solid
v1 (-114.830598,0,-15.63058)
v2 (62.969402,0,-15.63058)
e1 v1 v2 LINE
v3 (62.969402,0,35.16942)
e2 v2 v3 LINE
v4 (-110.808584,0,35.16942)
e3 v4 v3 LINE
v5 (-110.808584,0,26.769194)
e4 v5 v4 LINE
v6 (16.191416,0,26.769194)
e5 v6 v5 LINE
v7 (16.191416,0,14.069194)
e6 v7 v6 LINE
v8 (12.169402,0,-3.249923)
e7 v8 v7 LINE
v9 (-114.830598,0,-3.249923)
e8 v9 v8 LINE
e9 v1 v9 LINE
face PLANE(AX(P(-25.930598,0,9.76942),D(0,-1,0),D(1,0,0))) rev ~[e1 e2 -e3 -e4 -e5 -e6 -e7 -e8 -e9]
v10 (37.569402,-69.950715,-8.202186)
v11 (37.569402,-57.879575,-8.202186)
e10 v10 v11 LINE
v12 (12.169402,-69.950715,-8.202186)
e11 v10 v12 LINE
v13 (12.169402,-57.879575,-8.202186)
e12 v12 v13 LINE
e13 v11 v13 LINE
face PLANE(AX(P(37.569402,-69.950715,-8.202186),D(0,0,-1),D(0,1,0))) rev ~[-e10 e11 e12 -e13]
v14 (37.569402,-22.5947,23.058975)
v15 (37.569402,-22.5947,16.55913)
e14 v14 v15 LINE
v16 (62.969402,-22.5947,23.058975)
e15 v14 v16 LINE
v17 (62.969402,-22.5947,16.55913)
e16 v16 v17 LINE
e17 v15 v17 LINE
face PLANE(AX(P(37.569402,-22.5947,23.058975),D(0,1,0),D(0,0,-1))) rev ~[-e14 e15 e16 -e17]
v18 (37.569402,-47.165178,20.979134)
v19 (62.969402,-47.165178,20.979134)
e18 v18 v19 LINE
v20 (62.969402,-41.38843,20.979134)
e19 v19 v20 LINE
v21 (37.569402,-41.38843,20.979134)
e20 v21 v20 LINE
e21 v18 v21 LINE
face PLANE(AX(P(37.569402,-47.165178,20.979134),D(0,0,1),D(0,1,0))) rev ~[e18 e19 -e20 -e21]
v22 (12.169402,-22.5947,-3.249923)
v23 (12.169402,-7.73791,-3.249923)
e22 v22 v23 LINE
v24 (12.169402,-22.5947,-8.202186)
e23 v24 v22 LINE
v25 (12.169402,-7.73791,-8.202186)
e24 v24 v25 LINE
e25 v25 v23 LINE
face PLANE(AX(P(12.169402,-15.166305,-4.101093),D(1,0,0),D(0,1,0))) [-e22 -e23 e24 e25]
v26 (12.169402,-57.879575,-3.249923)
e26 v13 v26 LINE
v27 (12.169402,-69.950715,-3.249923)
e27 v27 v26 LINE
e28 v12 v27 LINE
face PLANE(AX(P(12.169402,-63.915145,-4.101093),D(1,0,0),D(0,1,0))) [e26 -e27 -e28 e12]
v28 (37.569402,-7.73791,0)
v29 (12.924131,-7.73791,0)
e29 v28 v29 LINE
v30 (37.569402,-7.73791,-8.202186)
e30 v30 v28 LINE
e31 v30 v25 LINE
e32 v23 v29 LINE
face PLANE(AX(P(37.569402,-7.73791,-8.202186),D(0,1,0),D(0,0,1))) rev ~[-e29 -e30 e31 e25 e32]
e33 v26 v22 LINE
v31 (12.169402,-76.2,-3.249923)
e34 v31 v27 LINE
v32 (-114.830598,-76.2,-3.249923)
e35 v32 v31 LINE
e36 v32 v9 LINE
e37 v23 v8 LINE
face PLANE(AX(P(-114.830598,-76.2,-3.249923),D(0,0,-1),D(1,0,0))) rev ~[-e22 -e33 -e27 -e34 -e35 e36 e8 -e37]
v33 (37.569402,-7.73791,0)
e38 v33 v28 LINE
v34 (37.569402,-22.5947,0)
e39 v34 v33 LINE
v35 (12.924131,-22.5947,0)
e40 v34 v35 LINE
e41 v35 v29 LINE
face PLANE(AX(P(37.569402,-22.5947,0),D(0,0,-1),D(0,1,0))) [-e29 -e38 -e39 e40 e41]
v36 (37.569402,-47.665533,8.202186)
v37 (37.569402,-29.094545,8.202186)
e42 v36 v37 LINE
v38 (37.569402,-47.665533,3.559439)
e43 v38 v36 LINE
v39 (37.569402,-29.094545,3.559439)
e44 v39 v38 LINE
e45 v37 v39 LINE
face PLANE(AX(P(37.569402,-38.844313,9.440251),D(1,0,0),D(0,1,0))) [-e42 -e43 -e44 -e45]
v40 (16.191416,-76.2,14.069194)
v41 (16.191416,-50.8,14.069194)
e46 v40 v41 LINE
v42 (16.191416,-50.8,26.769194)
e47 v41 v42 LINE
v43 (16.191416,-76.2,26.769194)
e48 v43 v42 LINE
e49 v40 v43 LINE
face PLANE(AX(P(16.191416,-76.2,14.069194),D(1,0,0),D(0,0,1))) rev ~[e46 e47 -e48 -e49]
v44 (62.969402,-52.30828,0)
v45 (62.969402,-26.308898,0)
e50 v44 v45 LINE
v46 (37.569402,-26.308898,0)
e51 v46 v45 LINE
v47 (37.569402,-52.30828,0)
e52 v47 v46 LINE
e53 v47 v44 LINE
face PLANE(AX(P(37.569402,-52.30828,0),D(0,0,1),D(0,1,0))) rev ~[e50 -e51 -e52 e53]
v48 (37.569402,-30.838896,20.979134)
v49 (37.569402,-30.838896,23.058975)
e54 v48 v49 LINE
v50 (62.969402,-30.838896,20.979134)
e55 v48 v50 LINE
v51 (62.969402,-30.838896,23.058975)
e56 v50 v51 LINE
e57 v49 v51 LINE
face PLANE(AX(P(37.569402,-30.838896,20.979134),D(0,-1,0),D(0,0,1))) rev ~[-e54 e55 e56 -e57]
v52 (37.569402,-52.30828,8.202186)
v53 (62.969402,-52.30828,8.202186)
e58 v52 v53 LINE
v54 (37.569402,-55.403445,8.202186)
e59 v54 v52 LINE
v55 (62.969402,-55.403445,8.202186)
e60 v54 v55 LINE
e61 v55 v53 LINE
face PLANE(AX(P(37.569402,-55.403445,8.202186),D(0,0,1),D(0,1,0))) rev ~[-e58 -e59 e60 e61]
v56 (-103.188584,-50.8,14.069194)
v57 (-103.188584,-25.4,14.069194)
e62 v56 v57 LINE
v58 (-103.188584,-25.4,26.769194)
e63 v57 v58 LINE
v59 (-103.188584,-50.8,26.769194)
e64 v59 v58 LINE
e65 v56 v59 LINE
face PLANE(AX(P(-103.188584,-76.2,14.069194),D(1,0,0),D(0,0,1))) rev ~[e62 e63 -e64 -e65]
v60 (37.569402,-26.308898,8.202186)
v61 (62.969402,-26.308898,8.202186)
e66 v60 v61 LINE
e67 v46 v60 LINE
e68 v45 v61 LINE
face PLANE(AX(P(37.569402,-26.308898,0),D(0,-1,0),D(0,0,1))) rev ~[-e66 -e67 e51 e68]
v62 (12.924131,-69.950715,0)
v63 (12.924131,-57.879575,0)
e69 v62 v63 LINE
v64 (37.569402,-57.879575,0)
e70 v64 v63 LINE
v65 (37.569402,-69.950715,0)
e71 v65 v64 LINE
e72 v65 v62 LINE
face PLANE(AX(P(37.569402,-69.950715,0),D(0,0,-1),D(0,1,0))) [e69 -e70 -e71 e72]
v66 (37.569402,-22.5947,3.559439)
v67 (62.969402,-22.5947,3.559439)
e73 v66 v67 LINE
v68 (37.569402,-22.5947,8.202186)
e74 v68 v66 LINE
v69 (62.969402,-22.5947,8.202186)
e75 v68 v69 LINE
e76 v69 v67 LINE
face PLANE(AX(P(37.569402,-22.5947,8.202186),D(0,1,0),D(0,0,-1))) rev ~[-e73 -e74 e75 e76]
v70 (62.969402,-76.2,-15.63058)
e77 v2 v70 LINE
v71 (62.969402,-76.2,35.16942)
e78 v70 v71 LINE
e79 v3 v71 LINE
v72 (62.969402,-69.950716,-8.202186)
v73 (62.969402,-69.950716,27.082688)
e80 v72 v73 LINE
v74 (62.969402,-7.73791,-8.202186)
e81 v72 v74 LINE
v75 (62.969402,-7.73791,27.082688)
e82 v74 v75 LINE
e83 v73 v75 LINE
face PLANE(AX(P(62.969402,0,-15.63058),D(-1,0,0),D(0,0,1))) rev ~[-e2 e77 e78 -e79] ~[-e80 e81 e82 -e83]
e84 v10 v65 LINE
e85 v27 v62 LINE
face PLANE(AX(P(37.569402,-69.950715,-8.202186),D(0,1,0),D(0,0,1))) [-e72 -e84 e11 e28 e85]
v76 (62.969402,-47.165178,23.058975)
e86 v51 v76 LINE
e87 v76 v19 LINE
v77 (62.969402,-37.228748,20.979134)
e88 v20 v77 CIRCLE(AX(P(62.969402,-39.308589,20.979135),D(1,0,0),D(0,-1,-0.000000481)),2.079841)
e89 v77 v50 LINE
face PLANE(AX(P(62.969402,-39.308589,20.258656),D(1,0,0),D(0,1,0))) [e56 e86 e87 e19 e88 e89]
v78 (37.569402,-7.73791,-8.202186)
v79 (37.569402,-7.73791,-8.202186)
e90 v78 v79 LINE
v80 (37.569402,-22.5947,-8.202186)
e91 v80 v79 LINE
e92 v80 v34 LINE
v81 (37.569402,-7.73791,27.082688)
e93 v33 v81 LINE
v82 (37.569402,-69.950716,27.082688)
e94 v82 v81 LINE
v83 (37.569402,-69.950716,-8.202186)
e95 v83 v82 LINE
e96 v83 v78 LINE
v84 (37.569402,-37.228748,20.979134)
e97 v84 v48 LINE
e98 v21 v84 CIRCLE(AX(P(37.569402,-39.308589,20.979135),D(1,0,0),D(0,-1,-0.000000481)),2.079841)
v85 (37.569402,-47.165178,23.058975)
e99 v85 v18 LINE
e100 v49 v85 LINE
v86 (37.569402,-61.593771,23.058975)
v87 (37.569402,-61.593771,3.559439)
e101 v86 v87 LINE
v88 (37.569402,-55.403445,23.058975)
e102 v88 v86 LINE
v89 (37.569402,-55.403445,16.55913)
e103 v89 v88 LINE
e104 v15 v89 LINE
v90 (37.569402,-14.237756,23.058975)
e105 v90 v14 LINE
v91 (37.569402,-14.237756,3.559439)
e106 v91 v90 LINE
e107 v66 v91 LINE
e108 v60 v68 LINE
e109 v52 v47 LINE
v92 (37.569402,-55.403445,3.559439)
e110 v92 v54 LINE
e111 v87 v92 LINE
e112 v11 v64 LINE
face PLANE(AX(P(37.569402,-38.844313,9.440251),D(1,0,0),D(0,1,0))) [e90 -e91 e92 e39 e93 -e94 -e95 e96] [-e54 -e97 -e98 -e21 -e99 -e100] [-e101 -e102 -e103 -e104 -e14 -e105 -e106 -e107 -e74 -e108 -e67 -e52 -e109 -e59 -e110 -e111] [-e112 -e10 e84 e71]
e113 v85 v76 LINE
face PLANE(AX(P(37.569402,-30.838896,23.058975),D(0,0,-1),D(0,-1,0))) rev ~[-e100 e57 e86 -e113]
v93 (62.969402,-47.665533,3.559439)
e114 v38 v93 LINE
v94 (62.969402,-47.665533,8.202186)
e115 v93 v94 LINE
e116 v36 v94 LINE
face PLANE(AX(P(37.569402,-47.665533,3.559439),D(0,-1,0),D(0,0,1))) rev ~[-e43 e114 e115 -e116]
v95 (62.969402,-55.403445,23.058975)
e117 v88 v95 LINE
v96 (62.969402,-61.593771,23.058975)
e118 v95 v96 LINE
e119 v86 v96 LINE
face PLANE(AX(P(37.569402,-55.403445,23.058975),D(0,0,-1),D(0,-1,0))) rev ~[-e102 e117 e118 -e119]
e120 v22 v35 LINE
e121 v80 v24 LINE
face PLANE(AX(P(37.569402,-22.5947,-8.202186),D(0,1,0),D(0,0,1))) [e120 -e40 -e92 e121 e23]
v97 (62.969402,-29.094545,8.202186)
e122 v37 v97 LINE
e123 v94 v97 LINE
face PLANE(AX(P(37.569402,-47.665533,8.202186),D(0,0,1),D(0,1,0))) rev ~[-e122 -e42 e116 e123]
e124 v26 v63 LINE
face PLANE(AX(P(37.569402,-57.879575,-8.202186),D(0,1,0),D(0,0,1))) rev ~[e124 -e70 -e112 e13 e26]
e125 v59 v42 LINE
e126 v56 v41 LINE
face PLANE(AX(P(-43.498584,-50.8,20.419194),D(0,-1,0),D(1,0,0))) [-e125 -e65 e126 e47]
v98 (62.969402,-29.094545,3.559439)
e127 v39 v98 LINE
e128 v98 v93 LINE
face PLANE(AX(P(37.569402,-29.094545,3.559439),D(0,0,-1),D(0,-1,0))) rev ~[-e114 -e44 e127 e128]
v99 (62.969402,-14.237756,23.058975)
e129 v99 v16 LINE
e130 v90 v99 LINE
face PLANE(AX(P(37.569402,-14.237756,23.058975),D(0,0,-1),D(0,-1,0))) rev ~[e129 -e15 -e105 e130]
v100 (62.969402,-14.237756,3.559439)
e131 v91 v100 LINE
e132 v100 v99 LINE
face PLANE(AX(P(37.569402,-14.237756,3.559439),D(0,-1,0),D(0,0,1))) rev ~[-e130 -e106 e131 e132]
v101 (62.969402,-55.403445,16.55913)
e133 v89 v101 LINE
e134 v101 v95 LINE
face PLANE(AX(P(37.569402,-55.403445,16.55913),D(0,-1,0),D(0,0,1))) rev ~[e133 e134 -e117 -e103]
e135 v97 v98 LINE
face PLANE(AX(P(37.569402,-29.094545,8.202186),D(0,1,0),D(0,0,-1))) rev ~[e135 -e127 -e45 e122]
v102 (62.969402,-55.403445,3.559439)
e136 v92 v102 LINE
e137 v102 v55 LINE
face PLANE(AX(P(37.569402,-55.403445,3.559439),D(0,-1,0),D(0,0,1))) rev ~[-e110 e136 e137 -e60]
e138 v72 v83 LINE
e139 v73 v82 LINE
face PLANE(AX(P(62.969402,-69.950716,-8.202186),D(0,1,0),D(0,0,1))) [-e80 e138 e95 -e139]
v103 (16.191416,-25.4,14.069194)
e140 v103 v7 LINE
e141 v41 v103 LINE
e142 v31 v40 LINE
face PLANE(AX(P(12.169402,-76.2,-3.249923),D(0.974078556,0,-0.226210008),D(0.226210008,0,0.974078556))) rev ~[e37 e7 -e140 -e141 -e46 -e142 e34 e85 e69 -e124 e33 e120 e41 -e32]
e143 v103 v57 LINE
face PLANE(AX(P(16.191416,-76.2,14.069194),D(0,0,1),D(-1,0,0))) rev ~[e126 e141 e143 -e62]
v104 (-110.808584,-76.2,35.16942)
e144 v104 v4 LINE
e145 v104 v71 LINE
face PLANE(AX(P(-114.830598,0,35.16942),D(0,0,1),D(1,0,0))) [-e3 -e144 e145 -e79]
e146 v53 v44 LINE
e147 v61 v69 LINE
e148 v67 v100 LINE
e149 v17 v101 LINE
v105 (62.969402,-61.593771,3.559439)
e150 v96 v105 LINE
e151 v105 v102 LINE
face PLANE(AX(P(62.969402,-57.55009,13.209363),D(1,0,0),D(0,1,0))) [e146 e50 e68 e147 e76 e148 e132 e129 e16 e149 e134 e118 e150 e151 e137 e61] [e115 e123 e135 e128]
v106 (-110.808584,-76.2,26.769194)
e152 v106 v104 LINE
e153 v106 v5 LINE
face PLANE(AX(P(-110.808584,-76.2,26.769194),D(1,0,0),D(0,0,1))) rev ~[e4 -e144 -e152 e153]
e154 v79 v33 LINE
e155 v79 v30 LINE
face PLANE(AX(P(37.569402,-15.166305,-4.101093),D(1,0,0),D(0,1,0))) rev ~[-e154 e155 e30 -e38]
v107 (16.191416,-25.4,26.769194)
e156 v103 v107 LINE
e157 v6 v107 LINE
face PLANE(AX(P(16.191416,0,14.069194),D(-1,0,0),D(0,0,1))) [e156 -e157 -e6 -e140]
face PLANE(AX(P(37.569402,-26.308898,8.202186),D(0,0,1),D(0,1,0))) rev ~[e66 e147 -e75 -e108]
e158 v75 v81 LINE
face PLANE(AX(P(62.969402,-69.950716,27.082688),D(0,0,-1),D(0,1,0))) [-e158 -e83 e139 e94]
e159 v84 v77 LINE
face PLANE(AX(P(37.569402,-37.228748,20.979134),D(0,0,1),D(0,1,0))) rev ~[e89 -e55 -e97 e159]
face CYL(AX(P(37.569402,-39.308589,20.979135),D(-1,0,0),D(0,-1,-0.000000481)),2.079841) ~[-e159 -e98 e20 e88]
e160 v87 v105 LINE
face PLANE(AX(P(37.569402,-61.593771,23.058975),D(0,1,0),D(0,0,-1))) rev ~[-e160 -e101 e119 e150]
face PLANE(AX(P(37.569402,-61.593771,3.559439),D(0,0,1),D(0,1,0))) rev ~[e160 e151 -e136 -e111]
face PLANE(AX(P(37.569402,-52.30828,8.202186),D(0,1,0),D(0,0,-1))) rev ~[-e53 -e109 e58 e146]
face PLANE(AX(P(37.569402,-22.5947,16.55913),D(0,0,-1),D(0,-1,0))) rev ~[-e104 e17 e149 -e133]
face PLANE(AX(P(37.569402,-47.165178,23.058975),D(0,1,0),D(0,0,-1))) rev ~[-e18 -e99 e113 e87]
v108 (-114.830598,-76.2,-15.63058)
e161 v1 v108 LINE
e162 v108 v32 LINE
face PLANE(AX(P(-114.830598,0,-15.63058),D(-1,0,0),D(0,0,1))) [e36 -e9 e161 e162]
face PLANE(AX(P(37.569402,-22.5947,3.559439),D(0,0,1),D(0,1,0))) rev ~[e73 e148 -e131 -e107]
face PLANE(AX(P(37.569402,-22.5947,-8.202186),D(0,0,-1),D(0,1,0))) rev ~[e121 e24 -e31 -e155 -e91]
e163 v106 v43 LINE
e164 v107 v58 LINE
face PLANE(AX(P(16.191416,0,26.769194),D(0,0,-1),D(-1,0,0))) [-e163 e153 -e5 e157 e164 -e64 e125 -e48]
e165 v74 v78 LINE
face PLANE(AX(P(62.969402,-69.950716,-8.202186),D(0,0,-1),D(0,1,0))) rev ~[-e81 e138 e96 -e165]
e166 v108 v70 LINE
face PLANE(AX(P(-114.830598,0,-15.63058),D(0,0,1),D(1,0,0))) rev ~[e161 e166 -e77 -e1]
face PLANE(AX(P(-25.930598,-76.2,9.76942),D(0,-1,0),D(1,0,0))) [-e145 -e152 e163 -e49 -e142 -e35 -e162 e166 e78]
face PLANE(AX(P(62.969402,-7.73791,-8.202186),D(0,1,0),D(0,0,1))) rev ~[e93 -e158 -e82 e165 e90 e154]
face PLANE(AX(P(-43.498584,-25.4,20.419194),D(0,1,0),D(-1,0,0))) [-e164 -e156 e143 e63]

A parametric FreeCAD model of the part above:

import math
import FreeCAD as App
import Part
import Sketcher
from FreeCAD import Vector
Q = App.Units.Quantity


def add_polygon(sketch, points):
    """Adds a closed chain of lines whose ends are joined by coincident constraints."""
    first, n = sketch.GeometryCount, len(points)
    for a, b in zip(points, points[1:] + points[:1]):
        sketch.addGeometry(Part.LineSegment(App.Vector(*a, 0), App.Vector(*b, 0)), False)
    for i in range(n):
        sketch.addConstraint(Sketcher.Constraint("Coincident", first + i, 2, first + (i + 1) % n, 1))

doc = App.newDocument("Part")
body = doc.addObject("PartDesign::Body", "Body")

sketch1 = body.newObject("Sketcher::SketchObject", "Sketch")
sketch1.AttachmentSupport = (doc.getObject("XZ_Plane"), [""])
sketch1.MapMode = "FlatFace"
add_polygon(sketch1, [(-114.830598, 35.16942), (-114.830598, -15.63058), (62.969402, -15.63058), (62.969402, 35.16942)])
sketch1.addConstraint([
    Sketcher.Constraint("Vertical", 0),
    Sketcher.Constraint("Horizontal", 1),
    Sketcher.Constraint("Vertical", 2),
    Sketcher.Constraint("Horizontal", 3),
    Sketcher.Constraint("DistanceX", 1, 1, 1, 2, Q("7 in")),
    Sketcher.Constraint("DistanceY", 0, 2, 0, 1, Q("2 in")),
    Sketcher.Constraint("DistanceY", 0, 2, -1, 1, 15.63058),
    Sketcher.Constraint("DistanceX", 0, 2, -1, 1, 114.830598),
])
pad1 = body.newObject("PartDesign::Pad", "Pad")
pad1.Profile = sketch1
pad1.Length = Q("3 in")

sketch2 = body.newObject("Sketcher::SketchObject", "Sketch001")
sketch2.AttachmentSupport = (doc.getObject("XZ_Plane"), [""])
sketch2.MapMode = "FlatFace"
sketch2.AttachmentOffset = App.Placement(Vector(0, 0, 3 * 25.4), App.Rotation())
add_polygon(sketch2, [(-114.830598, 35.16942), (-114.830598, -3.249923), (12.169402, -3.249923), (16.191416, 14.069194), (-103.188584, 14.069194), (-103.188584, 26.769194), (-110.808584, 26.769194), (-110.808584, 35.16942)])
sketch2.addConstraint([
    Sketcher.Constraint("Vertical", 0),
    Sketcher.Constraint("Horizontal", 1),
    Sketcher.Constraint("Horizontal", 3),
    Sketcher.Constraint("Vertical", 4),
    Sketcher.Constraint("Horizontal", 5),
    Sketcher.Constraint("Vertical", 6),
    Sketcher.Constraint("Horizontal", 7),
    Sketcher.Constraint("DistanceX", 1, 1, 1, 2, Q("5 in")),
    Sketcher.Constraint("DistanceX", 3, 2, 3, 1, Q("4.7 in")),
    Sketcher.Constraint("DistanceX", 5, 2, 5, 1, Q("0.3 in")),
    Sketcher.Constraint("DistanceY", 4, 1, 4, 2, Q("0.5 in")),
    Sketcher.Constraint("Distance", 2, Q("0.7 in")),
    Sketcher.Constraint("DistanceX", 7, 2, 7, 1, 4.022014),
    Sketcher.Constraint("DistanceY", 0, 2, 0, 1, 38.419343),
    Sketcher.Constraint("DistanceY", -1, 1, 6, 2, 35.16942),
    Sketcher.Constraint("DistanceX", 0, 2, -1, 1, 114.830598),
])
pocket1 = body.newObject("PartDesign::Pocket", "Pocket")
pocket1.Profile = sketch2
pocket1.Length = Q("3 in")

sketch3 = body.newObject("Sketcher::SketchObject", "Sketch002")
sketch3.AttachmentSupport = (doc.getObject("XZ_Plane"), [""])
sketch3.MapMode = "FlatFace"
sketch3.AttachmentOffset = App.Placement(Vector(0, 0, 3 * 25.4), App.Rotation())
add_polygon(sketch3, [(-103.188584, 26.769194), (-103.188584, 14.069194), (16.191416, 14.069194), (16.191416, 26.769194)])
sketch3.addConstraint([
    Sketcher.Constraint("Vertical", 0),
    Sketcher.Constraint("Horizontal", 1),
    Sketcher.Constraint("Vertical", 2),
    Sketcher.Constraint("Horizontal", 3),
    Sketcher.Constraint("DistanceX", 1, 1, 1, 2, Q("4.7 in")),
    Sketcher.Constraint("DistanceY", 0, 2, 0, 1, Q("0.5 in")),
    Sketcher.Constraint("DistanceX", 0, 2, -1, 1, 103.188584),
    Sketcher.Constraint("DistanceY", -1, 1, 0, 2, 14.069194),
])
pocket2 = body.newObject("PartDesign::Pocket", "Pocket001")
pocket2.Profile = sketch3
pocket2.Length = Q("1 in")

sketch4 = body.newObject("Sketcher::SketchObject", "Sketch003")
sketch4.AttachmentSupport = (doc.getObject("XZ_Plane"), [""])
sketch4.MapMode = "FlatFace"
add_polygon(sketch4, [(16.191416, 26.769194), (16.191416, 14.069194), (-103.188584, 14.069194), (-103.188584, 26.769194)])
sketch4.addConstraint([
    Sketcher.Constraint("Vertical", 0),
    Sketcher.Constraint("Horizontal", 1),
    Sketcher.Constraint("Vertical", 2),
    Sketcher.Constraint("Horizontal", 3),
    Sketcher.Constraint("DistanceX", 1, 2, 1, 1, Q("4.7 in")),
    Sketcher.Constraint("DistanceY", 0, 2, 0, 1, Q("0.5 in")),
    Sketcher.Constraint("DistanceX", -1, 1, 0, 2, 16.191416),
    Sketcher.Constraint("DistanceY", -1, 1, 0, 2, 14.069194),
])
pocket3 = body.newObject("PartDesign::Pocket", "Pocket002")
pocket3.Profile = sketch4
pocket3.Length = Q("1 in")
pocket3.Reversed = True

sketch5 = body.newObject("Sketcher::SketchObject", "Sketch004")
sketch5.AttachmentSupport = (doc.getObject("YZ_Plane"), [""])
sketch5.MapMode = "FlatFace"
sketch5.AttachmentOffset = App.Placement(Vector(0, 0, 62.969402), App.Rotation())
add_polygon(sketch5, [(-69.950716, 27.082688), (-69.950716, -8.202186), (-7.73791, -8.202186), (-7.73791, 27.082688)])
sketch5.addConstraint([
    Sketcher.Constraint("Vertical", 0),
    Sketcher.Constraint("Horizontal", 1),
    Sketcher.Constraint("Vertical", 2),
    Sketcher.Constraint("Horizontal", 3),
    Sketcher.Constraint("DistanceX", 1, 1, 1, 2, 62.212805),
    Sketcher.Constraint("DistanceY", 0, 2, 0, 1, 35.284875),
    Sketcher.Constraint("DistanceX", 1, 2, -1, 1, 7.73791),
    Sketcher.Constraint("DistanceY", -1, 1, 2, 2, 27.082688),
])
pocket4 = body.newObject("PartDesign::Pocket", "Pocket003")
pocket4.Profile = sketch5
pocket4.Length = Q("1 in")

sketch6 = body.newObject("Sketcher::SketchObject", "Sketch005")
sketch6.AttachmentSupport = (doc.getObject("YZ_Plane"), [""])
sketch6.MapMode = "FlatFace"
sketch6.AttachmentOffset = App.Placement(Vector(0, 0, 37.569402), App.Rotation())
add_polygon(sketch6, [(-69.950715, 0), (-69.950715, -8.202186), (-57.879575, -8.202186), (-57.879575, 0)])
add_polygon(sketch6, [(-22.5947, 0), (-22.5947, -8.202186), (-7.73791, -8.202186), (-7.73791, 0)])
sketch6.addConstraint([
    Sketcher.Constraint("Vertical", 0),
    Sketcher.Constraint("Horizontal", 1),
    Sketcher.Constraint("Vertical", 2),
    Sketcher.Constraint("Horizontal", 3),
    Sketcher.Constraint("Vertical", 4),
    Sketcher.Constraint("Horizontal", 5),
    Sketcher.Constraint("Vertical", 6),
    Sketcher.Constraint("Horizontal", 7),
    Sketcher.Constraint("PointOnObject", 2, 2, -1),
    Sketcher.Constraint("PointOnObject", 6, 2, -1),
    Sketcher.Constraint("Horizontal", 1, 2, 4, 2),
    Sketcher.Constraint("DistanceX", 1, 1, 1, 2, 12.07114),
    Sketcher.Constraint("DistanceX", 5, 1, 5, 2, 14.85679),
    Sketcher.Constraint("DistanceX", 4, 2, -1, 1, 22.5947),
    Sketcher.Constraint("DistanceY", 0, 2, 0, 1, 8.202186),
    Sketcher.Constraint("DistanceX", 0, 2, -1, 1, 69.950715),
])
pocket5 = body.newObject("PartDesign::Pocket", "Pocket004")
pocket5.Profile = sketch6
pocket5.Length = Q("1 in")

sketch7 = body.newObject("Sketcher::SketchObject", "Sketch006")
sketch7.AttachmentSupport = (doc.getObject("YZ_Plane"), [""])
sketch7.MapMode = "FlatFace"
sketch7.AttachmentOffset = App.Placement(Vector(0, 0, 37.569402), App.Rotation())
add_polygon(sketch7, [(-55.403445, 23.058975), (-61.593771, 23.058975), (-61.593771, 3.559439), (-55.403445, 3.559439), (-55.403445, 8.202186), (-52.30828, 8.202186), (-52.30828, 0), (-26.308898, 0), (-26.308898, 8.202186), (-22.5947, 8.202186), (-22.5947, 3.559439), (-14.237756, 3.559439), (-14.237756, 23.058975), (-22.5947, 23.058975), (-22.5947, 16.55913), (-55.403445, 16.55913)])
add_polygon(sketch7, [(-47.665533, 8.202186), (-29.094545, 8.202186), (-29.094545, 3.559439), (-47.665533, 3.559439)])
sketch7.addGeometry(Part.ArcOfCircle(Part.Circle(Vector(-39.308589, 20.979135, 0), Vector(0, 0, 1), 2.079841), math.radians(-179.999972), math.radians(-0.000028)), False)
sketch7.addGeometry(Part.LineSegment(Vector(-37.228748, 20.979134, 0), Vector(-30.838896, 20.979134, 0)), False)
sketch7.addGeometry(Part.LineSegment(Vector(-30.838896, 20.979134, 0), Vector(-30.838896, 23.058975, 0)), False)
sketch7.addGeometry(Part.LineSegment(Vector(-30.838896, 23.058975, 0), Vector(-47.165178, 23.058975, 0)), False)
sketch7.addGeometry(Part.LineSegment(Vector(-47.165178, 23.058975, 0), Vector(-47.165178, 20.979134, 0)), False)
sketch7.addGeometry(Part.LineSegment(Vector(-47.165178, 20.979134, 0), Vector(-41.38843, 20.979134, 0)), False)
sketch7.addConstraint([
    Sketcher.Constraint("Coincident", 20, 2, 21, 1),
    Sketcher.Constraint("Coincident", 21, 2, 22, 1),
    Sketcher.Constraint("Coincident", 22, 2, 23, 1),
    Sketcher.Constraint("Coincident", 23, 2, 24, 1),
    Sketcher.Constraint("Coincident", 24, 2, 25, 1),
    Sketcher.Constraint("Coincident", 25, 2, 20, 1),
    Sketcher.Constraint("Horizontal", 0),
    Sketcher.Constraint("Vertical", 1),
    Sketcher.Constraint("Horizontal", 2),
    Sketcher.Constraint("Vertical", 3),
    Sketcher.Constraint("Horizontal", 4),
    Sketcher.Constraint("Vertical", 5),
    Sketcher.Constraint("Horizontal", 6),
    Sketcher.Constraint("Vertical", 7),
    Sketcher.Constraint("Horizontal", 8),
    Sketcher.Constraint("Vertical", 9),
    Sketcher.Constraint("Horizontal", 10),
    Sketcher.Constraint("Vertical", 11),
    Sketcher.Constraint("Horizontal", 12),
    Sketcher.Constraint("Vertical", 13),
    Sketcher.Constraint("Horizontal", 14),
    Sketcher.Constraint("Vertical", 15),
    Sketcher.Constraint("Horizontal", 16),
    Sketcher.Constraint("Vertical", 17),
    Sketcher.Constraint("Horizontal", 18),
    Sketcher.Constraint("Vertical", 19),
    Sketcher.Constraint("Horizontal", 21),
    Sketcher.Constraint("Vertical", 22),
    Sketcher.Constraint("Horizontal", 23),
    Sketcher.Constraint("Vertical", 24),
    Sketcher.Constraint("Horizontal", 25),
    Sketcher.Constraint("PointOnObject", 5, 2, -1),
    Sketcher.Constraint("Horizontal", 4, 2, 7, 2),
    Sketcher.Constraint("Horizontal", 2, 2, 9, 2),
    Sketcher.Constraint("Horizontal", 0, 2, 11, 2),
    Sketcher.Constraint("Horizontal", 8, 2, 16, 2),
    Sketcher.Constraint("Horizontal", 10, 2, 17, 2),
    Sketcher.Constraint("Horizontal", 15, 2, 22, 2),
    Sketcher.Constraint("Horizontal", 21, 2, 24, 2),
    Sketcher.Constraint("Vertical", 9, 2, 12, 2),
    Sketcher.Constraint("Vertical", 3, 2, 14, 2),
    Sketcher.Constraint("Radius", 20, 2.079841),
    Sketcher.Constraint("DistanceX", 16, 1, 16, 2, 18.570988),
    Sketcher.Constraint("DistanceX", 23, 2, 23, 1, 16.326282),
    Sketcher.Constraint("DistanceY", 22, 1, 22, 2, 2.079841),
    Sketcher.Constraint("DistanceX", 8, 2, -1, 1, 22.5947),
    Sketcher.Constraint("DistanceX", 0, 2, 0, 1, 6.190326),
    Sketcher.Constraint("DistanceX", 4, 1, 4, 2, 3.095165),
    Sketcher.Constraint("DistanceX", 6, 1, 6, 2, 25.999382),
    Sketcher.Constraint("DistanceX", 8, 1, 8, 2, 3.714198),
    Sketcher.Constraint("DistanceX", 10, 1, 10, 2, 8.356944),
    Sketcher.Constraint("DistanceX", 21, 1, 21, 2, 6.389852),
    Sketcher.Constraint("DistanceY", 1, 2, 1, 1, 19.499536),
    Sketcher.Constraint("DistanceY", 3, 1, 3, 2, 4.642747),
    Sketcher.Constraint("DistanceY", 5, 2, 5, 1, 8.202186),
    Sketcher.Constraint("DistanceY", 13, 2, 13, 1, 6.499845),
    Sketcher.Constraint("DistanceX", 20, 3, -1, 1, 39.308589),
    Sketcher.Constraint("DistanceY", 20, 3, 0, 2, 2.07984),
    Sketcher.Constraint("DistanceX", 2, 2, 18, 2, 7.737912),
])
pad2 = body.newObject("PartDesign::Pad", "Pad001")
pad2.Profile = sketch7
pad2.Length = Q("1 in")

doc.recompute()
